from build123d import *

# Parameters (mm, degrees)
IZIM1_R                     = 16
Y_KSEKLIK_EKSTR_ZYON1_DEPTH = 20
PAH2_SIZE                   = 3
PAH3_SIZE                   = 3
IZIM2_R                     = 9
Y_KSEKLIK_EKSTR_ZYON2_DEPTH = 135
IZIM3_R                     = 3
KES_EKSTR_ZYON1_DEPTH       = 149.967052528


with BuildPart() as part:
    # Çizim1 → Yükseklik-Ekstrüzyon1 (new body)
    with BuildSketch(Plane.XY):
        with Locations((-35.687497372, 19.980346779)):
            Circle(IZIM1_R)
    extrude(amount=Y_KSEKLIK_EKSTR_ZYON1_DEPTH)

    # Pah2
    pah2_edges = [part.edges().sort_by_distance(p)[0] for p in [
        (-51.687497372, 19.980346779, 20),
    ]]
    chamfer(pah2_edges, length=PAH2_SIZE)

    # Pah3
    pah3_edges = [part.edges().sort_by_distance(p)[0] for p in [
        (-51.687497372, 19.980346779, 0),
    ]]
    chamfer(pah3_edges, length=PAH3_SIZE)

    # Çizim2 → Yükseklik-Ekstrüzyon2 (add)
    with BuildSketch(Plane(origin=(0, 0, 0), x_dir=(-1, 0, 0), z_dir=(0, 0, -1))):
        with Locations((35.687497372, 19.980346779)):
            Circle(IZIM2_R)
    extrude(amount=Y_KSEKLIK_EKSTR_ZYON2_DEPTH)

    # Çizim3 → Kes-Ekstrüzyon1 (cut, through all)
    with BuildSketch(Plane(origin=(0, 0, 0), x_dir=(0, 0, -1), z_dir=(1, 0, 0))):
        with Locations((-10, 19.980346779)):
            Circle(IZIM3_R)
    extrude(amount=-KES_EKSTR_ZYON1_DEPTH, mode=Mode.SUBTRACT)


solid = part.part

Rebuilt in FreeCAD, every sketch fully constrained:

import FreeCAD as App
import Part
import Sketcher
from FreeCAD import Vector
Q = App.Units.Quantity


def edges_at(feature, points):
    """Names of the edges that pass closest to the given points."""
    edges = feature.Shape.Edges
    near = lambda p: min(range(len(edges)), key=lambda i: edges[i].distToShape(Part.Vertex(*p))[0])
    return sorted({f"Edge{near(p) + 1}" for p in points})

doc = App.newDocument("Part")
body = doc.addObject("PartDesign::Body", "Body")

sketch1 = body.newObject("Sketcher::SketchObject", "Sketch")
sketch1.AttachmentSupport = (doc.getObject("XY_Plane"), [""])
sketch1.MapMode = "FlatFace"
sketch1.addGeometry(Part.Circle(Vector(-36, 20, 0), Vector(0, 0, 1), 16), False)
sketch1.addConstraint([
    Sketcher.Constraint("Diameter", 0, Q("32 mm")),
    Sketcher.Constraint("DistanceX", 0, 3, -1, 1, Q("35.687497 mm")),
    Sketcher.Constraint("DistanceY", -1, 1, 0, 3, Q("19.980347 mm")),
])
pad1 = body.newObject("PartDesign::Pad", "Pad")
pad1.Profile = sketch1
pad1.Length = 20
doc.recompute()

chamfer = body.newObject("PartDesign::Chamfer", "Chamfer")
chamfer.Base = (pad1, edges_at(pad1, [(-51.687, 19.98, 20)]))
chamfer.Size = 3
doc.recompute()

chamfer2 = body.newObject("PartDesign::Chamfer", "Chamfer001")
chamfer2.Base = (chamfer, edges_at(chamfer, [(-51.687, 19.98, 0)]))
chamfer2.Size = 3

sketch2 = body.newObject("Sketcher::SketchObject", "Sketch001")
sketch2.AttachmentSupport = (doc.getObject("XY_Plane"), [""])
sketch2.MapMode = "FlatFace"
sketch2.addGeometry(Part.Circle(Vector(-36, 20, 0), Vector(0, 0, 1), 9), False)
sketch2.addConstraint([
    Sketcher.Constraint("Diameter", 0, Q("18 mm")),
    Sketcher.Constraint("DistanceX", 0, 3, -1, 1, Q("35.687497 mm")),
    Sketcher.Constraint("DistanceY", -1, 1, 0, 3, Q("19.980347 mm")),
])
pad2 = body.newObject("PartDesign::Pad", "Pad001")
pad2.Profile = sketch2
pad2.Length = 135
pad2.Reversed = True

sketch3 = body.newObject("Sketcher::SketchObject", "Sketch002")
sketch3.AttachmentSupport = (doc.getObject("YZ_Plane"), [""])
sketch3.MapMode = "FlatFace"
sketch3.addGeometry(Part.Circle(Vector(20, 10, 0), Vector(0, 0, 1), 3), False)
sketch3.addConstraint([
    Sketcher.Constraint("Diameter", 0, Q("6 mm")),
    Sketcher.Constraint("DistanceY", -1, 1, 0, 3, Q("10 mm")),
    Sketcher.Constraint("DistanceX", -1, 1, 0, 3, Q("19.980347 mm")),
])
pocket1 = body.newObject("PartDesign::Pocket", "Pocket")
pocket1.Profile = sketch3
pocket1.Type = "ThroughAll"

doc.recompute()
